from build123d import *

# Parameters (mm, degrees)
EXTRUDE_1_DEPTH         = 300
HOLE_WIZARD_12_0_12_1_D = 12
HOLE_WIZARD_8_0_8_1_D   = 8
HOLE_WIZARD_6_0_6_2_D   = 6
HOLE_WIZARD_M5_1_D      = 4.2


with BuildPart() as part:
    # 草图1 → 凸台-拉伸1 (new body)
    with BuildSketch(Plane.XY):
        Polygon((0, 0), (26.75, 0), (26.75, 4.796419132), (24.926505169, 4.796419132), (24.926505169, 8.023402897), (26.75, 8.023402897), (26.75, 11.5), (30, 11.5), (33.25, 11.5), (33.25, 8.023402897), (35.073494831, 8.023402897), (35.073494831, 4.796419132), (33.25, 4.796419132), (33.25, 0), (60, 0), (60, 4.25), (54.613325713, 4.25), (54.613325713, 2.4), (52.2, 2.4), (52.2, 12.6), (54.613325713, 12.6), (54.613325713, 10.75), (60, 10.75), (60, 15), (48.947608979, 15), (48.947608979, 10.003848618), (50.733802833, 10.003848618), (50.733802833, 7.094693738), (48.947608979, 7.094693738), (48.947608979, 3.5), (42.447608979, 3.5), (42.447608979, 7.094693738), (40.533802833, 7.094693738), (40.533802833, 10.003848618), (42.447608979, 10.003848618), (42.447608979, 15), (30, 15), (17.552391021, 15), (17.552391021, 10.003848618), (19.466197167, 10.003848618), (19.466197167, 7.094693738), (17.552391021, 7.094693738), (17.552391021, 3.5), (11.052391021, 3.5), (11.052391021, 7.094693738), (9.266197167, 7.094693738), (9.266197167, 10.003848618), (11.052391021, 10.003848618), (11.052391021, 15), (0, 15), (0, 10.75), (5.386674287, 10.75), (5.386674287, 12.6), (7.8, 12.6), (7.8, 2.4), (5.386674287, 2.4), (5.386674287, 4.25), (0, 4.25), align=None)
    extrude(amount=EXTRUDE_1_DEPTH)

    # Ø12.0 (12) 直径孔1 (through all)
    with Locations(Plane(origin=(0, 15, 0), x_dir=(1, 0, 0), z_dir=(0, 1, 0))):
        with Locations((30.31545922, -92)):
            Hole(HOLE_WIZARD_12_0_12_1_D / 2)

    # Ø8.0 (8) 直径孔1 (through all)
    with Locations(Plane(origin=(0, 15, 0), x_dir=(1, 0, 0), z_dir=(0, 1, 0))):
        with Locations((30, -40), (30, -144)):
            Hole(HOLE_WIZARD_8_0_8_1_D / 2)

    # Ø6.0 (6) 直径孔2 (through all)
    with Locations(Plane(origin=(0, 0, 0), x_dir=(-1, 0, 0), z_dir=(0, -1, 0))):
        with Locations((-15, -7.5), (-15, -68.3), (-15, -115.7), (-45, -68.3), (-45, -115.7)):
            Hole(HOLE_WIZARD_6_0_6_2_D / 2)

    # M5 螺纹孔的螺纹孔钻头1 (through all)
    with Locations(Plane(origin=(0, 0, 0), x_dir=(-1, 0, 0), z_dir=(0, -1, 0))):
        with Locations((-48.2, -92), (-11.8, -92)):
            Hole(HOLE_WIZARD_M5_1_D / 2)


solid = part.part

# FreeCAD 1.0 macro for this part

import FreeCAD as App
import Part
import Sketcher

V = App.Vector


def add_polygon(sketch, points):
    """Adds a closed chain of lines whose ends are joined by coincident constraints."""
    first, n = sketch.GeometryCount, len(points)
    for a, b in zip(points, points[1:] + points[:1]):
        sketch.addGeometry(Part.LineSegment(App.Vector(*a, 0), App.Vector(*b, 0)), False)
    for i in range(n):
        sketch.addConstraint(Sketcher.Constraint("Coincident", first + i, 2, first + (i + 1) % n, 1))

doc = App.newDocument("Part")
params = doc.addObject("Spreadsheet::Sheet", "Params")
for row, (alias, value) in enumerate([
    ("sketch1_width", "6.5 mm"),
    ("sketch1_height", "10.2 mm"),
    ("sketch1_height2", "4.25 mm"),
    ("pad1_length", "300 mm"),
    ("sketch2_diameter", "12 mm"),
    ("hole_diameter", "12 mm"),
    ("sketch3_diameter", "8 mm"),
    ("hole2_diameter", "8 mm"),
    ("sketch4_diameter", "6 mm"),
    ("hole3_diameter", "6 mm"),
    ("sketch5_diameter", "4.2 mm"),
    ("hole4_diameter", "4.2 mm"),
], start=1):
    params.set(f"A{row}", alias)
    params.set(f"B{row}", "=" + value)
    params.setAlias(f"B{row}", alias)

body = doc.addObject("PartDesign::Body", "Body")

# Sketch on XY plane
sketch1 = body.newObject("Sketcher::SketchObject", "Sketch")
sketch1.AttachmentSupport = (doc.getObject("XY_Plane"), [""])
sketch1.MapMode = "FlatFace"
add_polygon(sketch1, [(0, 0), (26.8, 0), (26.8, 4.8), (24.9, 4.8), (24.9, 8), (26.8, 8), (26.8, 11.5), (33.2, 11.5), (33.2, 8), (35.1, 8), (35.1, 4.8), (33.2, 4.8), (33.2, 0), (60, 0), (60, 4.2), (54.6, 4.2), (54.6, 2.4), (52.2, 2.4), (52.2, 12.6), (54.6, 12.6), (54.6, 10.8), (60, 10.8), (60, 15), (48.9, 15), (48.9, 10), (50.7, 10), (50.7, 7.1), (48.9, 7.1), (48.9, 3.5), (42.4, 3.5), (42.4, 7.1), (40.5, 7.1), (40.5, 10), (42.4, 10), (42.4, 15), (17.6, 15), (17.6, 10), (19.5, 10), (19.5, 7.1), (17.6, 7.1), (17.6, 3.5), (11.1, 3.5), (11.1, 7.1), (9.3, 7.1), (9.3, 10), (11.1, 10), (11.1, 15), (0, 15), (0, 10.8), (5.4, 10.8), (5.4, 12.6), (7.8, 12.6), (7.8, 2.4), (5.4, 2.4), (5.4, 4.2), (0, 4.2)])  # lines 0-55
sketch1.addConstraint([
    Sketcher.Constraint("Horizontal", 0),
    Sketcher.Constraint("Vertical", 1),
    Sketcher.Constraint("Horizontal", 2),
    Sketcher.Constraint("Vertical", 3),
    Sketcher.Constraint("Horizontal", 4),
    Sketcher.Constraint("Vertical", 5),
    Sketcher.Constraint("Horizontal", 6),
    Sketcher.Constraint("Vertical", 7),
    Sketcher.Constraint("Horizontal", 8),
    Sketcher.Constraint("Vertical", 9),
    Sketcher.Constraint("Horizontal", 10),
    Sketcher.Constraint("Vertical", 11),
    Sketcher.Constraint("Horizontal", 12),
    Sketcher.Constraint("Vertical", 13),
    Sketcher.Constraint("Horizontal", 14),
    Sketcher.Constraint("Vertical", 15),
    Sketcher.Constraint("Horizontal", 16),
    Sketcher.Constraint("Vertical", 17),
    Sketcher.Constraint("Horizontal", 18),
    Sketcher.Constraint("Vertical", 19),
    Sketcher.Constraint("Horizontal", 20),
    Sketcher.Constraint("Vertical", 21),
    Sketcher.Constraint("Horizontal", 22),
    Sketcher.Constraint("Vertical", 23),
    Sketcher.Constraint("Horizontal", 24),
    Sketcher.Constraint("Vertical", 25),
    Sketcher.Constraint("Horizontal", 26),
    Sketcher.Constraint("Vertical", 27),
    Sketcher.Constraint("Horizontal", 28),
    Sketcher.Constraint("Vertical", 29),
    Sketcher.Constraint("Horizontal", 30),
    Sketcher.Constraint("Vertical", 31),
    Sketcher.Constraint("Horizontal", 32),
    Sketcher.Constraint("Vertical", 33),
    Sketcher.Constraint("Horizontal", 34),
    Sketcher.Constraint("Vertical", 35),
    Sketcher.Constraint("Horizontal", 36),
    Sketcher.Constraint("Vertical", 37),
    Sketcher.Constraint("Horizontal", 38),
    Sketcher.Constraint("Vertical", 39),
    Sketcher.Constraint("Horizontal", 40),
    Sketcher.Constraint("Vertical", 41),
    Sketcher.Constraint("Horizontal", 42),
    Sketcher.Constraint("Vertical", 43),
    Sketcher.Constraint("Horizontal", 44),
    Sketcher.Constraint("Vertical", 45),
    Sketcher.Constraint("Horizontal", 46),
    Sketcher.Constraint("Vertical", 47),
    Sketcher.Constraint("Horizontal", 48),
    Sketcher.Constraint("Vertical", 49),
    Sketcher.Constraint("Horizontal", 50),
    Sketcher.Constraint("Vertical", 51),
    Sketcher.Constraint("Horizontal", 52),
    Sketcher.Constraint("Vertical", 53),
    Sketcher.Constraint("Horizontal", 54),
    Sketcher.Constraint("Vertical", 55),
    Sketcher.Constraint("Coincident", 55, 2, -1, 1),
    Sketcher.Constraint("PointOnObject", 11, 2, -1),
    Sketcher.Constraint("PointOnObject", 46, 2, -2),
    Sketcher.Constraint("Horizontal", 4, 2, 7, 2),
    Sketcher.Constraint("Horizontal", 2, 2, 9, 2),
    Sketcher.Constraint("Horizontal", 26, 2, 29, 2),
    Sketcher.Constraint("Horizontal", 24, 2, 31, 2),
    Sketcher.Constraint("Horizontal", 22, 2, 33, 2),
    Sketcher.Constraint("Horizontal", 32, 2, 35, 2),
    Sketcher.Constraint("Horizontal", 30, 2, 37, 2),
    Sketcher.Constraint("Horizontal", 28, 2, 39, 2),
    Sketcher.Constraint("Horizontal", 38, 2, 41, 2),
    Sketcher.Constraint("Horizontal", 36, 2, 43, 2),
    Sketcher.Constraint("Horizontal", 34, 2, 45, 2),
    Sketcher.Constraint("Horizontal", 20, 2, 47, 2),
    Sketcher.Constraint("Horizontal", 18, 2, 49, 2),
    Sketcher.Constraint("Horizontal", 16, 2, 51, 2),
    Sketcher.Constraint("Horizontal", 14, 2, 53, 2),
    Sketcher.Constraint("Vertical", 1, 2, 4, 2),
    Sketcher.Constraint("Vertical", 7, 2, 10, 2),
    Sketcher.Constraint("Vertical", 15, 2, 18, 2),
    Sketcher.Constraint("Vertical", 13, 2, 20, 2),
    Sketcher.Constraint("Vertical", 23, 2, 26, 2),
    Sketcher.Constraint("Vertical", 29, 2, 32, 2),
    Sketcher.Constraint("Vertical", 35, 2, 38, 2),
    Sketcher.Constraint("Vertical", 41, 2, 44, 2),
    Sketcher.Constraint("Vertical", 49, 2, 52, 2),
    Sketcher.Constraint("Equal", 4, 8),
    Sketcher.Constraint("Equal", 0, 12),
    Sketcher.Constraint("Equal", 6, 28),
    Sketcher.Constraint("Equal", 32, 36),
    Sketcher.Constraint("Equal", 28, 40),
    Sketcher.Constraint("Equal", 26, 42),
    Sketcher.Constraint("Equal", 22, 46),
    Sketcher.Constraint("Equal", 20, 48),
    Sketcher.Constraint("Equal", 18, 50),
    Sketcher.Constraint("Equal", 15, 19),
    Sketcher.Constraint("Equal", 13, 21),
    Sketcher.Constraint("DistanceX", 6, 1, 6, 2, 6.5),
    Sketcher.Constraint("DistanceY", 17, 1, 17, 2, 10.2),
    Sketcher.Constraint("DistanceX", -1, 1, 12, 2, 60.0),
    Sketcher.Constraint("DistanceY", -1, 1, 21, 2, 15.0),
    Sketcher.Constraint("DistanceY", 13, 1, 13, 2, 4.25),
    Sketcher.Constraint("DistanceY", -1, 1, 5, 2, 11.5),
    Sketcher.Constraint("DistanceX", -1, 1, 16, 2, 52.2),
    Sketcher.Constraint("DistanceY", -1, 1, 27, 2, 3.5),
    Sketcher.Constraint("DistanceX", 22, 2, 22, 1, 11.052391),
    Sketcher.Constraint("DistanceY", 1, 1, 1, 2, 4.796419),
    Sketcher.Constraint("DistanceY", 23, 2, 23, 1, 4.996151),
    Sketcher.Constraint("DistanceX", 2, 2, 2, 1, 1.823495),
    Sketcher.Constraint("DistanceX", 14, 2, 14, 1, 5.386674),
    Sketcher.Constraint("DistanceX", 24, 1, 24, 2, 1.786194),
    Sketcher.Constraint("DistanceX", 30, 2, 30, 1, 1.913806),
    Sketcher.Constraint("DistanceY", 3, 1, 3, 2, 3.226984),
    Sketcher.Constraint("DistanceY", 25, 2, 25, 1, 2.909155),
])
sketch1.setExpression("Constraints[150]", "Params.sketch1_width")
sketch1.setExpression("Constraints[151]", "Params.sketch1_height")
sketch1.setExpression("Constraints[154]", "Params.sketch1_height2")
pad1 = body.newObject("PartDesign::Pad", "Pad")
pad1.Profile = sketch1
pad1.setExpression("Length", "Params.pad1_length")

# Sketch on XZ plane
sketch2 = body.newObject("Sketcher::SketchObject", "Sketch001")
sketch2.AttachmentSupport = (doc.getObject("XZ_Plane"), [""])
sketch2.MapMode = "FlatFace"
sketch2.AttachmentOffset = App.Placement(V(0, 0, -15), App.Rotation())
sketch2.addGeometry(Part.Circle(V(30, 92, 0), V(0, 0, 1), 6), False)
sketch2.addConstraint([
    Sketcher.Constraint("Diameter", 0, 12.0),
    Sketcher.Constraint("DistanceY", -1, 1, 0, 3, 92.0),
    Sketcher.Constraint("DistanceX", -1, 1, 0, 3, 30.315459),
])
sketch2.setExpression("Constraints[0]", "Params.sketch2_diameter")
doc.recompute()
hole = body.newObject("PartDesign::Hole", "Hole")
hole.Profile = sketch2
hole.ThreadType = "None"
hole.setExpression("Diameter", "Params.hole_diameter")
hole.DepthType = "ThroughAll"
hole.Reversed = True

# Sketch on XZ plane
sketch3 = body.newObject("Sketcher::SketchObject", "Sketch002")
sketch3.AttachmentSupport = (doc.getObject("XZ_Plane"), [""])
sketch3.MapMode = "FlatFace"
sketch3.AttachmentOffset = App.Placement(V(0, 0, -15), App.Rotation())
sketch3.addGeometry([
    Part.Circle(V(30, 40, 0), V(0, 0, 1), 4),
    Part.Circle(V(30, 144, 0), V(0, 0, 1), 4),
], False)
sketch3.addConstraint([
    Sketcher.Constraint("Equal", 0, 1),
    Sketcher.Constraint("Vertical", 0, 3, 1, 3),
    Sketcher.Constraint("Diameter", 0, 8.0),
    Sketcher.Constraint("DistanceX", -1, 1, 0, 3, 30.0),
    Sketcher.Constraint("DistanceY", -1, 1, 0, 3, 40.0),
    Sketcher.Constraint("DistanceY", -1, 1, 1, 3, 144.0),
])
sketch3.setExpression("Constraints[2]", "Params.sketch3_diameter")
doc.recompute()
hole2 = body.newObject("PartDesign::Hole", "Hole001")
hole2.Profile = sketch3
hole2.ThreadType = "None"
hole2.setExpression("Diameter", "Params.hole2_diameter")
hole2.DepthType = "ThroughAll"
hole2.Reversed = True

# Sketch on XZ plane
sketch4 = body.newObject("Sketcher::SketchObject", "Sketch003")
sketch4.AttachmentSupport = (doc.getObject("XZ_Plane"), [""])
sketch4.MapMode = "FlatFace"
sketch4.addGeometry([
    Part.Circle(V(15, 7.5, 0), V(0, 0, 1), 3),  # 0
    Part.Circle(V(15, 68.3, 0), V(0, 0, 1), 3),  # 1
    Part.Circle(V(15, 115.7, 0), V(0, 0, 1), 3),  # 2
    Part.Circle(V(45, 68.3, 0), V(0, 0, 1), 3),  # 3
    Part.Circle(V(45, 115.7, 0), V(0, 0, 1), 3),  # 4
], False)
sketch4.addConstraint([
    Sketcher.Constraint("Equal", 0, 1),
    Sketcher.Constraint("Equal", 1, 2),
    Sketcher.Constraint("Equal", 2, 3),
    Sketcher.Constraint("Equal", 3, 4),
    Sketcher.Constraint("Horizontal", 1, 3, 3, 3),
    Sketcher.Constraint("Horizontal", 2, 3, 4, 3),
    Sketcher.Constraint("Vertical", 0, 3, 1, 3),
    Sketcher.Constraint("Vertical", 1, 3, 2, 3),
    Sketcher.Constraint("Vertical", 3, 3, 4, 3),
    Sketcher.Constraint("Diameter", 0, 6.0),
    Sketcher.Constraint("DistanceX", -1, 1, 0, 3, 15.0),
    Sketcher.Constraint("DistanceX", -1, 1, 3, 3, 45.0),
    Sketcher.Constraint("DistanceY", -1, 1, 0, 3, 7.5),
    Sketcher.Constraint("DistanceY", -1, 1, 1, 3, 68.3),
    Sketcher.Constraint("DistanceY", -1, 1, 2, 3, 115.7),
])
sketch4.setExpression("Constraints[9]", "Params.sketch4_diameter")
doc.recompute()
hole3 = body.newObject("PartDesign::Hole", "Hole002")
hole3.Profile = sketch4
hole3.ThreadType = "None"
hole3.setExpression("Diameter", "Params.hole3_diameter")
hole3.DepthType = "ThroughAll"

# Sketch on XZ plane
sketch5 = body.newObject("Sketcher::SketchObject", "Sketch004")
sketch5.AttachmentSupport = (doc.getObject("XZ_Plane"), [""])
sketch5.MapMode = "FlatFace"
sketch5.addGeometry([
    Part.Circle(V(48.2, 92, 0), V(0, 0, 1), 2.1),
    Part.Circle(V(11.8, 92, 0), V(0, 0, 1), 2.1),
], False)
sketch5.addConstraint([
    Sketcher.Constraint("Equal", 0, 1),
    Sketcher.Constraint("Horizontal", 0, 3, 1, 3),
    Sketcher.Constraint("Diameter", 0, 4.2),
    Sketcher.Constraint("DistanceY", -1, 1, 0, 3, 92.0),
    Sketcher.Constraint("DistanceX", -1, 1, 0, 3, 48.2),
    Sketcher.Constraint("DistanceX", -1, 1, 1, 3, 11.8),
])
sketch5.setExpression("Constraints[2]", "Params.sketch5_diameter")
doc.recompute()
hole4 = body.newObject("PartDesign::Hole", "Hole003")
hole4.Profile = sketch5
hole4.ThreadType = "None"
hole4.setExpression("Diameter", "Params.hole4_diameter")
hole4.DepthType = "ThroughAll"

doc.recompute()
